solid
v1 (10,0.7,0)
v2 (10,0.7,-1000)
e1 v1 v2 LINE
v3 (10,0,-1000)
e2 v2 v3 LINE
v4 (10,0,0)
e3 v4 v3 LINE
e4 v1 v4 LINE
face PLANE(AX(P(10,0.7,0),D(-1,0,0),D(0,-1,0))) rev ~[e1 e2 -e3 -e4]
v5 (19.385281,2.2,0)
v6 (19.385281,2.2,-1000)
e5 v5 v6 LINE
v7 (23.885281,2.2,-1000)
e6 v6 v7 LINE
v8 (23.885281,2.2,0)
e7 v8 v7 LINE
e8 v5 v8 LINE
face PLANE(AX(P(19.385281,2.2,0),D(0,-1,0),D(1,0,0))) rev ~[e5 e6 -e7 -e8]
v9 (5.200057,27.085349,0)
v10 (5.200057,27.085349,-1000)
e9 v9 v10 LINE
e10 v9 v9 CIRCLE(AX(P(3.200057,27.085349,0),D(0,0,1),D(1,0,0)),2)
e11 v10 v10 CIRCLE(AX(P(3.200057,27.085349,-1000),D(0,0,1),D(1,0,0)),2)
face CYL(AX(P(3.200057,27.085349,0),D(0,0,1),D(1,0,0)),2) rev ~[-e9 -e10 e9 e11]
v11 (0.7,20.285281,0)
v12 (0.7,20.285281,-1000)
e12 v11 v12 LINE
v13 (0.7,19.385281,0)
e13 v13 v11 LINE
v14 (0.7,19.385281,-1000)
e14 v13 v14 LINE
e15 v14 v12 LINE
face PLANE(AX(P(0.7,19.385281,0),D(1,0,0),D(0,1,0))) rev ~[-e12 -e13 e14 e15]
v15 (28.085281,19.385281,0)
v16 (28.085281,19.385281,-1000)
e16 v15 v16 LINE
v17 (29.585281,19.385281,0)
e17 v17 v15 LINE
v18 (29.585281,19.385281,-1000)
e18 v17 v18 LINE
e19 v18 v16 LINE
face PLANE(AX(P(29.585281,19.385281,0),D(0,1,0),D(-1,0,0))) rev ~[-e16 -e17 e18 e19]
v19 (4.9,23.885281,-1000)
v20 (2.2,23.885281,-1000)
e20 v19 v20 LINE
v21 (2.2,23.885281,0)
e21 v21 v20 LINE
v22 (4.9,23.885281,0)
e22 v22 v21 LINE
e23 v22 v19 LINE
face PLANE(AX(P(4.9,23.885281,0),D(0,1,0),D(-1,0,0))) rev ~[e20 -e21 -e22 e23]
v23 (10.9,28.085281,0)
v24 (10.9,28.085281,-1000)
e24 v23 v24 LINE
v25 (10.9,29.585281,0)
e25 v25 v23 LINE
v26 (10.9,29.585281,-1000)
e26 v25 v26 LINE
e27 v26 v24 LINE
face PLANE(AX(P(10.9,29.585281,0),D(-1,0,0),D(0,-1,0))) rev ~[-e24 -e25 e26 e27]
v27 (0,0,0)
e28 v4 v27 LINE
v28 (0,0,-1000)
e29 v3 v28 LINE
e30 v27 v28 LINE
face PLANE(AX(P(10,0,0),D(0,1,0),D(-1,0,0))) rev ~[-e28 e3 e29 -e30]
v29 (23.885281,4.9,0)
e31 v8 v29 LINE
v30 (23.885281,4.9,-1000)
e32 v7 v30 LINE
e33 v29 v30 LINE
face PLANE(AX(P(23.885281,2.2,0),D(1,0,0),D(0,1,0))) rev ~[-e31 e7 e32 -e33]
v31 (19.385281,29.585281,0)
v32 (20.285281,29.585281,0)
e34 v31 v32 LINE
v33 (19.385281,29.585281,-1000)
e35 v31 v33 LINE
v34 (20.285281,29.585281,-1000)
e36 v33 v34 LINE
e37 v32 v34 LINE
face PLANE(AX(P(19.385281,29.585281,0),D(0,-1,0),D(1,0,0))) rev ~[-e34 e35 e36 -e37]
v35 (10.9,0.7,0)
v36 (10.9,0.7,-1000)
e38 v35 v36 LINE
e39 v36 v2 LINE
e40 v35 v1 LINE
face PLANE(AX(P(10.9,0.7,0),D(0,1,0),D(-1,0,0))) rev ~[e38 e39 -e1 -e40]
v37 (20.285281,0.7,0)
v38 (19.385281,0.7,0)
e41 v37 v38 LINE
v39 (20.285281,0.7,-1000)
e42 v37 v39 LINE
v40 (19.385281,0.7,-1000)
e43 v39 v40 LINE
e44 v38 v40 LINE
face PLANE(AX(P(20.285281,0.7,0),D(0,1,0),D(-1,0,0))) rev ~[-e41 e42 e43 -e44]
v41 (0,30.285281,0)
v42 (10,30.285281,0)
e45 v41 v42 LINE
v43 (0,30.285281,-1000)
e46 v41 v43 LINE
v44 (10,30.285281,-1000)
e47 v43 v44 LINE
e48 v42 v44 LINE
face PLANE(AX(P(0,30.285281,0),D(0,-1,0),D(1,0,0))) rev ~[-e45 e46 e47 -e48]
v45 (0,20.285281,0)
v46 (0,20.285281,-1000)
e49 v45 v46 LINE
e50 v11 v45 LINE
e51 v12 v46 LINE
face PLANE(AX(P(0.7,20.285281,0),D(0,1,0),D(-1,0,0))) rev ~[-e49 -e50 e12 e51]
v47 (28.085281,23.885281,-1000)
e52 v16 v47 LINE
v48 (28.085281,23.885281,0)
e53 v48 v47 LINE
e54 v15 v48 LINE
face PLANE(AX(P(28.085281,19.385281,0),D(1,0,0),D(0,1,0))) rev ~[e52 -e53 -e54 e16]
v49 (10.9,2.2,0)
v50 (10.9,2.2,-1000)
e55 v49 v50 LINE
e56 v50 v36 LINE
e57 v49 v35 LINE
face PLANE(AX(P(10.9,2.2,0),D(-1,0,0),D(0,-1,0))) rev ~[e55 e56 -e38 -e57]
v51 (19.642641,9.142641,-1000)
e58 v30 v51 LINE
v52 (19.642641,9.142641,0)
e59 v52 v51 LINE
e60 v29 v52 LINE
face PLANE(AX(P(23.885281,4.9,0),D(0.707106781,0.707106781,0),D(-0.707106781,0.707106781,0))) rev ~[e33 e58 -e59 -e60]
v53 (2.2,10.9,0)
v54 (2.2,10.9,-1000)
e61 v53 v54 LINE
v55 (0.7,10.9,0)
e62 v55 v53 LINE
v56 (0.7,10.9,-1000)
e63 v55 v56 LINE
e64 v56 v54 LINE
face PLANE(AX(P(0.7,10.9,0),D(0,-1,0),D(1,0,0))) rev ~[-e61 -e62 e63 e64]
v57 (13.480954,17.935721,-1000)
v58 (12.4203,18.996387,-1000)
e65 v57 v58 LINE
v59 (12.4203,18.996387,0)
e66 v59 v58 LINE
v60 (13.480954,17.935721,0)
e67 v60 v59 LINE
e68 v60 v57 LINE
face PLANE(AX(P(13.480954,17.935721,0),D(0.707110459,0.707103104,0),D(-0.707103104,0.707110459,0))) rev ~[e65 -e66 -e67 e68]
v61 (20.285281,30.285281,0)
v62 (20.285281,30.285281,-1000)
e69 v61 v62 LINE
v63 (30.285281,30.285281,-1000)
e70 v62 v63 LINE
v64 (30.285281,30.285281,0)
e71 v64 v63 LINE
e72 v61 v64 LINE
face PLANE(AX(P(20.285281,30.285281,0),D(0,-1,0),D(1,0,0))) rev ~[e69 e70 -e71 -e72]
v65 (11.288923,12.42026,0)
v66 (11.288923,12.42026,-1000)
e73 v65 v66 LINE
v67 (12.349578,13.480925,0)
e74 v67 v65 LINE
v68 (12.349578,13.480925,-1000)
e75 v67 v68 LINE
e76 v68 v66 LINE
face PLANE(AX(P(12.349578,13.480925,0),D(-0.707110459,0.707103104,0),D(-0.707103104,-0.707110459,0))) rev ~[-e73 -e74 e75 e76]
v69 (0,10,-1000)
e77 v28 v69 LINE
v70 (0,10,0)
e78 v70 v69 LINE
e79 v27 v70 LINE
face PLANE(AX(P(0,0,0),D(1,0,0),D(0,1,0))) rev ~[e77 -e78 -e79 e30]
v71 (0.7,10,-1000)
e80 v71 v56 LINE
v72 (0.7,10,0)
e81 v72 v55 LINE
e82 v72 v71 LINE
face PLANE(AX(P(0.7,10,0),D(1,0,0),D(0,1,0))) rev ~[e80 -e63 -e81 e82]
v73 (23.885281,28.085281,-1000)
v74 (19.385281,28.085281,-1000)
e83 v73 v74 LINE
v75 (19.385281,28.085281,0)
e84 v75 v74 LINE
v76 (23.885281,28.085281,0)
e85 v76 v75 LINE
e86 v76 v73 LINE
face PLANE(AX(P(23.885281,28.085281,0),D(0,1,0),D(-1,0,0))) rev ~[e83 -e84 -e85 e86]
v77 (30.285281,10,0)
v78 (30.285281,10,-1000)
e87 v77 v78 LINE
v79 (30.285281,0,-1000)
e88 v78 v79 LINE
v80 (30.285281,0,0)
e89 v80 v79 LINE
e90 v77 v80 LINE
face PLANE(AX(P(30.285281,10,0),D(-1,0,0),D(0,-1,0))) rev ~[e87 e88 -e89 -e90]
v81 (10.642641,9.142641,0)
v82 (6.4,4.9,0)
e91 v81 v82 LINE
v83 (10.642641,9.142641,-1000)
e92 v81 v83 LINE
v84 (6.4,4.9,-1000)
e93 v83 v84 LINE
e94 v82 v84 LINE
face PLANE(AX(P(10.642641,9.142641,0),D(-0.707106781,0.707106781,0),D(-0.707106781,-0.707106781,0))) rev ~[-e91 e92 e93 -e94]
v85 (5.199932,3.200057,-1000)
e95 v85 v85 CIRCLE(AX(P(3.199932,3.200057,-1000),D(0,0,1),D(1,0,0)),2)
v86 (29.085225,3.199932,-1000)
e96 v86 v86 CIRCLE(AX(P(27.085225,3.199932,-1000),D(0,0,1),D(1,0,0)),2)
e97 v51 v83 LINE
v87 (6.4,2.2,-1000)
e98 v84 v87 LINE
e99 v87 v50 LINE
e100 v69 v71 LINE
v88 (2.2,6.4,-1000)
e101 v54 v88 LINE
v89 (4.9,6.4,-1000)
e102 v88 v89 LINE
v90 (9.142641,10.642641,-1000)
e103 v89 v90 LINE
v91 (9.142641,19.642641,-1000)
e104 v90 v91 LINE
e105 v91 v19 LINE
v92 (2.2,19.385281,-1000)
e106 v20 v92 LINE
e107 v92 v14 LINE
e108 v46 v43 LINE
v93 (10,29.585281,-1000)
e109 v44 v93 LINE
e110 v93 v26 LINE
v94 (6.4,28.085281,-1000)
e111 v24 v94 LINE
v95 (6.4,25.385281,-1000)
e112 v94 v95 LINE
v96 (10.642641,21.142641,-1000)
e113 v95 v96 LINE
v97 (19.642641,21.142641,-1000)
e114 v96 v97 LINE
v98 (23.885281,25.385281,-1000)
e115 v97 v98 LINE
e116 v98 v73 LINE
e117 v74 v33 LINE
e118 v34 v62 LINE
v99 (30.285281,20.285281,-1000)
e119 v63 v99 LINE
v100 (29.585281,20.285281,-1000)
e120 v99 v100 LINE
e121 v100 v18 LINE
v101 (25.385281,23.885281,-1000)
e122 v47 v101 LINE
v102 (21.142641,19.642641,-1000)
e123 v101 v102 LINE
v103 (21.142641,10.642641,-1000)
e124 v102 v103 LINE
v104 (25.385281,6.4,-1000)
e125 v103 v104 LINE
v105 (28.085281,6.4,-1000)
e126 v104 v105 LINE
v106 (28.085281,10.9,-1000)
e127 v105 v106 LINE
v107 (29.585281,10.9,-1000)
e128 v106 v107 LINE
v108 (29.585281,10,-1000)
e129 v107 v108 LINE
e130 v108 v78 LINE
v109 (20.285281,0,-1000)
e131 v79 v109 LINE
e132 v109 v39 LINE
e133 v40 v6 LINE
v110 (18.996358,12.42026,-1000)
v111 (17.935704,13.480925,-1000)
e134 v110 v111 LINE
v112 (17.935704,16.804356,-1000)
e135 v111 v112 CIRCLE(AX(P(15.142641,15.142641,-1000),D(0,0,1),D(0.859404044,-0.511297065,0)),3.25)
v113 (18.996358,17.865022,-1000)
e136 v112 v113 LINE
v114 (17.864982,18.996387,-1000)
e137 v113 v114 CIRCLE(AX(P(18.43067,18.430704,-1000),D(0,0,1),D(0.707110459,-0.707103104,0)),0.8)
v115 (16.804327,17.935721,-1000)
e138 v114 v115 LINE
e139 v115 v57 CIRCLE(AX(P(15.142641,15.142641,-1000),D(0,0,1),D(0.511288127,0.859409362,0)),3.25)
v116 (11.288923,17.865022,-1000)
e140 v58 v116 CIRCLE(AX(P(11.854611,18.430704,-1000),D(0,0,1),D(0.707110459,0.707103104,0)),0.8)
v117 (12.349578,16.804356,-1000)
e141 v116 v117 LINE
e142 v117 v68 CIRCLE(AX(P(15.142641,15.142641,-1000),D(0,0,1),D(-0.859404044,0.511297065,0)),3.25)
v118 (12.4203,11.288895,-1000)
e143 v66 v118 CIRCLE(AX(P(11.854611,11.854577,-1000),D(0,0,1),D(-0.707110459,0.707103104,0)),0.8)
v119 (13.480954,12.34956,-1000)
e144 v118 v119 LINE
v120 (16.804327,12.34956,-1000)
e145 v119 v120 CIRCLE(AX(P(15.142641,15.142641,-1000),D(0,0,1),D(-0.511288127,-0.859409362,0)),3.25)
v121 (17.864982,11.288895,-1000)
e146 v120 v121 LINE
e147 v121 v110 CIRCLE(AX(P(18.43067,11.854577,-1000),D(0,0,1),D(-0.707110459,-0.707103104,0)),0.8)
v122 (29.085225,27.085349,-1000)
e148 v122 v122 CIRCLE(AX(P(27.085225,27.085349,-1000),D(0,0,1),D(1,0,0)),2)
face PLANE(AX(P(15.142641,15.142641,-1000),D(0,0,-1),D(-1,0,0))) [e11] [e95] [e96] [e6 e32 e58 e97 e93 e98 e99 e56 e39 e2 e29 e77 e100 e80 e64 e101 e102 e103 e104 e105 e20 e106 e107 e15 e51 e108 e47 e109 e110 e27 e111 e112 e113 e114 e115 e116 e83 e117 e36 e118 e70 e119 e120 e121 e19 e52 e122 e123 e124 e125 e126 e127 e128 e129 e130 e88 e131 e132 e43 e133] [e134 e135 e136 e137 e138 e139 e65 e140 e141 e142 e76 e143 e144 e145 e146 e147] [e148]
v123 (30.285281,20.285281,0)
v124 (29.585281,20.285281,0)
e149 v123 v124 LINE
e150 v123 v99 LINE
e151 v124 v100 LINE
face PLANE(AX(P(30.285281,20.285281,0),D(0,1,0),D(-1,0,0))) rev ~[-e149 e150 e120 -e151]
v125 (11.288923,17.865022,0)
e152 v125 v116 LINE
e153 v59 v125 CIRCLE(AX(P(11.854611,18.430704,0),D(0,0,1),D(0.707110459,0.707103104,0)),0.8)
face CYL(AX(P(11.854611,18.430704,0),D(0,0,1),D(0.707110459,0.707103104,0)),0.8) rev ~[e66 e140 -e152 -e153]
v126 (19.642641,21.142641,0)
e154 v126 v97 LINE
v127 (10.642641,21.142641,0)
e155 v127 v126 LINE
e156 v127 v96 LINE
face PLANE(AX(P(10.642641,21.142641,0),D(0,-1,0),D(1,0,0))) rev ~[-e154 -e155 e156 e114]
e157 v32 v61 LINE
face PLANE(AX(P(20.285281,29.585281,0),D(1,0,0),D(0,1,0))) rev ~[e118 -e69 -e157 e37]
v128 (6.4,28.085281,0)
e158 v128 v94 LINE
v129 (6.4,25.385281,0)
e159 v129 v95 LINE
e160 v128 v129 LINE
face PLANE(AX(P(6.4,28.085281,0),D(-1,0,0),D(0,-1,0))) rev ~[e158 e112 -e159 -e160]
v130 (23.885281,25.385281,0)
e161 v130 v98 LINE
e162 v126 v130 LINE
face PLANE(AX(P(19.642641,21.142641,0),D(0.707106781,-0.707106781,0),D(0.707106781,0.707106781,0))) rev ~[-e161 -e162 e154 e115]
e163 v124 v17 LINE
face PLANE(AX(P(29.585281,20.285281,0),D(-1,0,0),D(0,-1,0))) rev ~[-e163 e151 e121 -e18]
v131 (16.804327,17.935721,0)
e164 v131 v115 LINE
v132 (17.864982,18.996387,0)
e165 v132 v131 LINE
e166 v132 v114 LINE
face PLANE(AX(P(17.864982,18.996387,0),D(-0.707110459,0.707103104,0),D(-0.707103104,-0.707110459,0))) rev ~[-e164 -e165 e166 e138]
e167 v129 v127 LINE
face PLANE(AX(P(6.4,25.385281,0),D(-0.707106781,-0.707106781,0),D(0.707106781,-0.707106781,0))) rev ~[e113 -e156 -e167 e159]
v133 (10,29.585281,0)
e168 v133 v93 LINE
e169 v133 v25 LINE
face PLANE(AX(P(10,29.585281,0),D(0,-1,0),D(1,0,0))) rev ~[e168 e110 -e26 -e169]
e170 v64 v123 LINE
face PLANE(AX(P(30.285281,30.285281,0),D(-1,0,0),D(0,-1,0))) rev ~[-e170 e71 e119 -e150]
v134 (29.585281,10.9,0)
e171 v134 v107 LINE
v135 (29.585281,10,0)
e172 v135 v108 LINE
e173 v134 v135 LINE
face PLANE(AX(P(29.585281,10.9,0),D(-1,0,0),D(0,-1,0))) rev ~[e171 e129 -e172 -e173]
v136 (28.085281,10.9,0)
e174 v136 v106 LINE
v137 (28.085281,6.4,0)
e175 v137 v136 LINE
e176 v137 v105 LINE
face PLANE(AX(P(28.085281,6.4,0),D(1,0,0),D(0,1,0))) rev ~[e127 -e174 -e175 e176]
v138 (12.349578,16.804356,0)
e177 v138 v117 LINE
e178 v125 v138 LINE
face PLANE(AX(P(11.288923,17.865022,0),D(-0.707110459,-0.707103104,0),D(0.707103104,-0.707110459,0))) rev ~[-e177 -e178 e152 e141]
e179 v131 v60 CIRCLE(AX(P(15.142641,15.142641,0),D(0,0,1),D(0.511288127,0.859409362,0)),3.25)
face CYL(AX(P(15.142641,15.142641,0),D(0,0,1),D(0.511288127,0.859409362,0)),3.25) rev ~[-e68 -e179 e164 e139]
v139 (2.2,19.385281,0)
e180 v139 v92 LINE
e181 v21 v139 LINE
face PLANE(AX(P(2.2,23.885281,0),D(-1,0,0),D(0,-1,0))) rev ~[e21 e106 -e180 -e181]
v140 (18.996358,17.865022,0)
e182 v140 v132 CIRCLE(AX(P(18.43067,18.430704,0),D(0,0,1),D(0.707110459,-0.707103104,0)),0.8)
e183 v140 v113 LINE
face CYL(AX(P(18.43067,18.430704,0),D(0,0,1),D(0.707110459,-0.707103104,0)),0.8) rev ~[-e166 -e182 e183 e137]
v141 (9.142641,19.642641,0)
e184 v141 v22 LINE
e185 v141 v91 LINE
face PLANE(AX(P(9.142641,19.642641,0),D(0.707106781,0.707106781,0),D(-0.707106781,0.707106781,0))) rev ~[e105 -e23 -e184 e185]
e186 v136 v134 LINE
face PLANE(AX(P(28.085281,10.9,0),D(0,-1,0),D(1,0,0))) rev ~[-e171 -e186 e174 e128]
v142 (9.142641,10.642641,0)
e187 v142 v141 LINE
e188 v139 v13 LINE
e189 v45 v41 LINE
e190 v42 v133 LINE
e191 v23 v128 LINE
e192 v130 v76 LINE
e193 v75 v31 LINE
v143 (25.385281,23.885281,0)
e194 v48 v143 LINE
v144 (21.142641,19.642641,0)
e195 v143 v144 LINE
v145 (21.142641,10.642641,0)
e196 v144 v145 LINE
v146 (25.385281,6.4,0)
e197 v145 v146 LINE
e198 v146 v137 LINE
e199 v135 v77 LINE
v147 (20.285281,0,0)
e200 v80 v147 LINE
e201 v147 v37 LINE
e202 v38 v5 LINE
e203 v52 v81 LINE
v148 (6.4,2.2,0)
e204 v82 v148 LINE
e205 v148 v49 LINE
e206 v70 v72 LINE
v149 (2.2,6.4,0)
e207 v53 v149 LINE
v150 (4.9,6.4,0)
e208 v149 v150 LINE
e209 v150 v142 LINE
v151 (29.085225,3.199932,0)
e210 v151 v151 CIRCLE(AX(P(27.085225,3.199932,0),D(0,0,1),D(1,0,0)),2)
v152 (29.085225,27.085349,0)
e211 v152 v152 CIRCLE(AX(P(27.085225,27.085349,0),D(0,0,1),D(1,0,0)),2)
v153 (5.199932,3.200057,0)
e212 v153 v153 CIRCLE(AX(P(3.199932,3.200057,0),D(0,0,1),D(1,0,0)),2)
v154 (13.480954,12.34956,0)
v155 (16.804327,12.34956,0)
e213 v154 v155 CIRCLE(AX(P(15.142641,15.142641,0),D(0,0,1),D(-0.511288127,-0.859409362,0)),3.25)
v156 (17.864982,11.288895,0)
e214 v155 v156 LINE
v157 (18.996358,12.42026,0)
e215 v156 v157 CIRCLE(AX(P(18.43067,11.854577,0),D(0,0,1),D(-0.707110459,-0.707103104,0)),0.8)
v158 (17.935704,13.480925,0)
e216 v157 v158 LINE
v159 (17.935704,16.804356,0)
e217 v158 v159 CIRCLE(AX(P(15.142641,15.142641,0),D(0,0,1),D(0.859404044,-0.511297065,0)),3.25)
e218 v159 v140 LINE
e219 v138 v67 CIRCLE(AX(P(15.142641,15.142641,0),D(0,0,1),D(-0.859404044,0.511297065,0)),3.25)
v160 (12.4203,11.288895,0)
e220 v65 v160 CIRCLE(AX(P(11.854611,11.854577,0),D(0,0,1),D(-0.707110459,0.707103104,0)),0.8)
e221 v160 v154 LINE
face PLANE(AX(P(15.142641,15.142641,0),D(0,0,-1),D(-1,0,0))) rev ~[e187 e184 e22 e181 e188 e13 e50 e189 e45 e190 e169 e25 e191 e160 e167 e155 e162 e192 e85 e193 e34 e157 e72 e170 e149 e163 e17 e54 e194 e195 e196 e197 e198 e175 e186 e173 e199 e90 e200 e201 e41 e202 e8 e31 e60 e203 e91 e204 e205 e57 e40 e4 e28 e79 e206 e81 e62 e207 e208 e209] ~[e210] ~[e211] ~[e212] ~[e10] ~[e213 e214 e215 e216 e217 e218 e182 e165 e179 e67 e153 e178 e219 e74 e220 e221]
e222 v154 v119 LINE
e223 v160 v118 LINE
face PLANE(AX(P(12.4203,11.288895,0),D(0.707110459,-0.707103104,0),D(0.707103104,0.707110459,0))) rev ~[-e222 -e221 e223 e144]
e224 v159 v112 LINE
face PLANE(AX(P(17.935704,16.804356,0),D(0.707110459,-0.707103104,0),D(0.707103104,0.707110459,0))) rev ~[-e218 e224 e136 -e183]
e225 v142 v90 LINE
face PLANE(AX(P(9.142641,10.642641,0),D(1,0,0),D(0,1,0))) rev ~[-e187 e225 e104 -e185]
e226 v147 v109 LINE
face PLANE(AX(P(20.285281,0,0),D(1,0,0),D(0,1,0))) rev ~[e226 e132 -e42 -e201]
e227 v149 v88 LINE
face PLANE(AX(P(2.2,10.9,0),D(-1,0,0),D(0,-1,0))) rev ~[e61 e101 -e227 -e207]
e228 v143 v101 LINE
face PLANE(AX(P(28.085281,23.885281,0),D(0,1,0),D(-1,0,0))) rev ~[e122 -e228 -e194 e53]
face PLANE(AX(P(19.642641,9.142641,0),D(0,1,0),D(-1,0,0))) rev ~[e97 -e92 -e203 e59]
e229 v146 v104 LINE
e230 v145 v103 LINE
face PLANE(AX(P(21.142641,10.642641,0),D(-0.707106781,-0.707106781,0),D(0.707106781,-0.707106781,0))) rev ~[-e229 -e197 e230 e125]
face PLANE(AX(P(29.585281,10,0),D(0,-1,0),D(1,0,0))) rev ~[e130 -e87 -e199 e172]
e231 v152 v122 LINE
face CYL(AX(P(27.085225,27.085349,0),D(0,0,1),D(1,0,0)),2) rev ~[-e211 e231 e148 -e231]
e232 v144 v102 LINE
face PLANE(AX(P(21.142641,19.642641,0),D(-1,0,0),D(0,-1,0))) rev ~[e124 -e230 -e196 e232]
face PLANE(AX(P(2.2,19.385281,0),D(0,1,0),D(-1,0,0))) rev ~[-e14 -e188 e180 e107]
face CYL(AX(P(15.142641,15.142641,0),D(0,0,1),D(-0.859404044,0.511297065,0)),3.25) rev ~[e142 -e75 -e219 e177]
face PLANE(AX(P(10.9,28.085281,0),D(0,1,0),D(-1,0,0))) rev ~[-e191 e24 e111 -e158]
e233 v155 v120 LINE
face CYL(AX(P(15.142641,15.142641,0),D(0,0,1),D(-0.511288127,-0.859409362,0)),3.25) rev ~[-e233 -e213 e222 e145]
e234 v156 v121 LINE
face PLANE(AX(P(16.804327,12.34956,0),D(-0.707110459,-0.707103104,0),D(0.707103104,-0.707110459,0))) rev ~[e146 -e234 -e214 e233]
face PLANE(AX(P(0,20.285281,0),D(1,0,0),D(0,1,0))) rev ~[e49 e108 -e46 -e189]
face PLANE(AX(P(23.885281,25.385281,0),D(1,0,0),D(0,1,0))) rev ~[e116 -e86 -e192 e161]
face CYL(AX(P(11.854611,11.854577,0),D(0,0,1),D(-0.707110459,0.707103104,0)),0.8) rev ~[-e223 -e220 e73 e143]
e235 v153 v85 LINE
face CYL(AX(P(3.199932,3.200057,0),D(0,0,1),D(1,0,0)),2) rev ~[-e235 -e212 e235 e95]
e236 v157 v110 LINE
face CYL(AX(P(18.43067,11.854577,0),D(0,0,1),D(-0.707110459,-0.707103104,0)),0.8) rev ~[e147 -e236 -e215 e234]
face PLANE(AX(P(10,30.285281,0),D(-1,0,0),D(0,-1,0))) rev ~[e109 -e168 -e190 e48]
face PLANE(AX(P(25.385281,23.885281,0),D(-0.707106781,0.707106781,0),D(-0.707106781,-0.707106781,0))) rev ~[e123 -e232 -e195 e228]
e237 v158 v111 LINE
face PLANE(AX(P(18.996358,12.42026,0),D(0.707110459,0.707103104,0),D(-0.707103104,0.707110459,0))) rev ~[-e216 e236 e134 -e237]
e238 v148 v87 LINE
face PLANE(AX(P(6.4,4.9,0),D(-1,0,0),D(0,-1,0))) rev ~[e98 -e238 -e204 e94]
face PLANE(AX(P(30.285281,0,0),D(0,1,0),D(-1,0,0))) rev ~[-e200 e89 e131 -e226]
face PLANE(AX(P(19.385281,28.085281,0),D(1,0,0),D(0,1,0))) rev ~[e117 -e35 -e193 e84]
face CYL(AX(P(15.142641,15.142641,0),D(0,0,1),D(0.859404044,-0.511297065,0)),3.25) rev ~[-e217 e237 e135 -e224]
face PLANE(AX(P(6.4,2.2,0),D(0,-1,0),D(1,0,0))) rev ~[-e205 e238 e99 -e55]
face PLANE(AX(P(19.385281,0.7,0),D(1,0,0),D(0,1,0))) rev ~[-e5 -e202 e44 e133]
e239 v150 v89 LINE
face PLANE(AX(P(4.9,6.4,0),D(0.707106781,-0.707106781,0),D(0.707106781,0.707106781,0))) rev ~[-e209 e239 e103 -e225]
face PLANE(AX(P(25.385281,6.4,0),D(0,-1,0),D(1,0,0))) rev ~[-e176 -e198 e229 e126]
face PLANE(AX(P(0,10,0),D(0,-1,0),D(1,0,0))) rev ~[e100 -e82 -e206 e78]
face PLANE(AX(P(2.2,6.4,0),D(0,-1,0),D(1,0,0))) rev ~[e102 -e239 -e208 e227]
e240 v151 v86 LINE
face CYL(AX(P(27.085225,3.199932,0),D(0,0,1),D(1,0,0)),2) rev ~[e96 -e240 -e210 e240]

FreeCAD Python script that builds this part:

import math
import FreeCAD as App
import Part
import Sketcher
from FreeCAD import Vector

doc = App.newDocument("Part")
body = doc.addObject("PartDesign::Body", "Body")

# Sketch on XY plane
sketch1 = body.newObject("Sketcher::SketchObject", "Sketch")
sketch1.AttachmentSupport = (doc.getObject("XY_Plane"), [""])
sketch1.MapMode = "FlatFace"
sketch1.addGeometry(Part.LineSegment(Vector(0, 10, 0), Vector(0, 0, 0)), False)
sketch1.addGeometry(Part.LineSegment(Vector(0, 0, 0), Vector(10, 0, 0)), False)
sketch1.addGeometry(Part.LineSegment(Vector(10, 0, 0), Vector(10, 0.7, 0)), False)
sketch1.addGeometry(Part.LineSegment(Vector(10, 0.7, 0), Vector(10.9, 0.7, 0)), False)
sketch1.addGeometry(Part.LineSegment(Vector(10.9, 0.7, 0), Vector(10.9, 2.2, 0)), False)
sketch1.addGeometry(Part.LineSegment(Vector(10.9, 2.2, 0), Vector(6.4, 2.2, 0)), False)
sketch1.addGeometry(Part.LineSegment(Vector(6.4, 2.2, 0), Vector(6.4, 4.9, 0)), False)
sketch1.addGeometry(Part.LineSegment(Vector(6.4, 4.9, 0), Vector(10.6, 9.1, 0)), False)
sketch1.addGeometry(Part.LineSegment(Vector(10.6, 9.1, 0), Vector(19.6, 9.1, 0)), False)
sketch1.addGeometry(Part.LineSegment(Vector(19.6, 9.1, 0), Vector(23.9, 4.9, 0)), False)
sketch1.addGeometry(Part.LineSegment(Vector(23.9, 4.9, 0), Vector(23.9, 2.2, 0)), False)
sketch1.addGeometry(Part.LineSegment(Vector(23.9, 2.2, 0), Vector(19.4, 2.2, 0)), False)
sketch1.addGeometry(Part.LineSegment(Vector(19.4, 2.2, 0), Vector(19.4, 0.7, 0)), False)
sketch1.addGeometry(Part.LineSegment(Vector(19.4, 0.7, 0), Vector(20.3, 0.7, 0)), False)
sketch1.addGeometry(Part.LineSegment(Vector(20.3, 0.7, 0), Vector(20.3, 0, 0)), False)
sketch1.addGeometry(Part.LineSegment(Vector(20.3, 0, 0), Vector(30.3, 0, 0)), False)
sketch1.addGeometry(Part.LineSegment(Vector(30.3, 0, 0), Vector(30.3, 10, 0)), False)
sketch1.addGeometry(Part.LineSegment(Vector(30.3, 10, 0), Vector(29.6, 10, 0)), False)
sketch1.addGeometry(Part.LineSegment(Vector(29.6, 10, 0), Vector(29.6, 10.9, 0)), False)
sketch1.addGeometry(Part.LineSegment(Vector(29.6, 10.9, 0), Vector(28.1, 10.9, 0)), False)
sketch1.addGeometry(Part.LineSegment(Vector(28.1, 10.9, 0), Vector(28.1, 6.4, 0)), False)
sketch1.addGeometry(Part.LineSegment(Vector(28.1, 6.4, 0), Vector(25.4, 6.4, 0)), False)
sketch1.addGeometry(Part.LineSegment(Vector(25.4, 6.4, 0), Vector(21.1, 10.6, 0)), False)
sketch1.addGeometry(Part.LineSegment(Vector(21.1, 10.6, 0), Vector(21.1, 19.6, 0)), False)
sketch1.addGeometry(Part.LineSegment(Vector(21.1, 19.6, 0), Vector(25.4, 23.9, 0)), False)
sketch1.addGeometry(Part.LineSegment(Vector(25.4, 23.9, 0), Vector(28.1, 23.9, 0)), False)
sketch1.addGeometry(Part.LineSegment(Vector(28.1, 23.9, 0), Vector(28.1, 19.4, 0)), False)
sketch1.addGeometry(Part.LineSegment(Vector(28.1, 19.4, 0), Vector(29.6, 19.4, 0)), False)
sketch1.addGeometry(Part.LineSegment(Vector(29.6, 19.4, 0), Vector(29.6, 20.3, 0)), False)
sketch1.addGeometry(Part.LineSegment(Vector(29.6, 20.3, 0), Vector(30.3, 20.3, 0)), False)
sketch1.addGeometry(Part.LineSegment(Vector(30.3, 20.3, 0), Vector(30.3, 30.3, 0)), False)
sketch1.addGeometry(Part.LineSegment(Vector(30.3, 30.3, 0), Vector(20.3, 30.3, 0)), False)
sketch1.addGeometry(Part.LineSegment(Vector(20.3, 30.3, 0), Vector(20.3, 29.6, 0)), False)
sketch1.addGeometry(Part.LineSegment(Vector(20.3, 29.6, 0), Vector(19.4, 29.6, 0)), False)
sketch1.addGeometry(Part.LineSegment(Vector(19.4, 29.6, 0), Vector(19.4, 28.1, 0)), False)
sketch1.addGeometry(Part.LineSegment(Vector(19.4, 28.1, 0), Vector(23.9, 28.1, 0)), False)
sketch1.addGeometry(Part.LineSegment(Vector(23.9, 28.1, 0), Vector(23.9, 25.4, 0)), False)
sketch1.addGeometry(Part.LineSegment(Vector(23.9, 25.4, 0), Vector(19.6, 21.1, 0)), False)
sketch1.addGeometry(Part.LineSegment(Vector(19.6, 21.1, 0), Vector(10.6, 21.1, 0)), False)
sketch1.addGeometry(Part.LineSegment(Vector(10.6, 21.1, 0), Vector(6.4, 25.4, 0)), False)
sketch1.addGeometry(Part.LineSegment(Vector(6.4, 25.4, 0), Vector(6.4, 28.1, 0)), False)
sketch1.addGeometry(Part.LineSegment(Vector(6.4, 28.1, 0), Vector(10.9, 28.1, 0)), False)
sketch1.addGeometry(Part.LineSegment(Vector(10.9, 28.1, 0), Vector(10.9, 29.6, 0)), False)
sketch1.addGeometry(Part.LineSegment(Vector(10.9, 29.6, 0), Vector(10, 29.6, 0)), False)
sketch1.addGeometry(Part.LineSegment(Vector(10, 29.6, 0), Vector(10, 30.3, 0)), False)
sketch1.addGeometry(Part.LineSegment(Vector(10, 30.3, 0), Vector(0, 30.3, 0)), False)
sketch1.addGeometry(Part.LineSegment(Vector(0, 30.3, 0), Vector(0, 20.3, 0)), False)
sketch1.addGeometry(Part.LineSegment(Vector(0, 20.3, 0), Vector(0.7, 20.3, 0)), False)
sketch1.addGeometry(Part.LineSegment(Vector(0.7, 20.3, 0), Vector(0.7, 19.4, 0)), False)
sketch1.addGeometry(Part.LineSegment(Vector(0.7, 19.4, 0), Vector(2.2, 19.4, 0)), False)
sketch1.addGeometry(Part.LineSegment(Vector(2.2, 19.4, 0), Vector(2.2, 23.9, 0)), False)
sketch1.addGeometry(Part.LineSegment(Vector(2.2, 23.9, 0), Vector(4.9, 23.9, 0)), False)
sketch1.addGeometry(Part.LineSegment(Vector(4.9, 23.9, 0), Vector(9.1, 19.6, 0)), False)
sketch1.addGeometry(Part.LineSegment(Vector(9.1, 19.6, 0), Vector(9.1, 10.6, 0)), False)
sketch1.addGeometry(Part.LineSegment(Vector(9.1, 10.6, 0), Vector(4.9, 6.4, 0)), False)
sketch1.addGeometry(Part.LineSegment(Vector(4.9, 6.4, 0), Vector(2.2, 6.4, 0)), False)
sketch1.addGeometry(Part.LineSegment(Vector(2.2, 6.4, 0), Vector(2.2, 10.9, 0)), False)
sketch1.addGeometry(Part.LineSegment(Vector(2.2, 10.9, 0), Vector(0.7, 10.9, 0)), False)
sketch1.addGeometry(Part.LineSegment(Vector(0.7, 10.9, 0), Vector(0.7, 10, 0)), False)
sketch1.addGeometry(Part.LineSegment(Vector(0.7, 10, 0), Vector(0, 10, 0)), False)
sketch1.addConstraint(Sketcher.Constraint("Coincident", 0, 2, 1, 1))
sketch1.addConstraint(Sketcher.Constraint("Coincident", 1, 2, 2, 1))
sketch1.addConstraint(Sketcher.Constraint("Coincident", 2, 2, 3, 1))
sketch1.addConstraint(Sketcher.Constraint("Coincident", 3, 2, 4, 1))
sketch1.addConstraint(Sketcher.Constraint("Coincident", 4, 2, 5, 1))
sketch1.addConstraint(Sketcher.Constraint("Coincident", 5, 2, 6, 1))
sketch1.addConstraint(Sketcher.Constraint("Coincident", 6, 2, 7, 1))
sketch1.addConstraint(Sketcher.Constraint("Coincident", 7, 2, 8, 1))
sketch1.addConstraint(Sketcher.Constraint("Coincident", 8, 2, 9, 1))
sketch1.addConstraint(Sketcher.Constraint("Coincident", 9, 2, 10, 1))
sketch1.addConstraint(Sketcher.Constraint("Coincident", 10, 2, 11, 1))
sketch1.addConstraint(Sketcher.Constraint("Coincident", 11, 2, 12, 1))
sketch1.addConstraint(Sketcher.Constraint("Coincident", 12, 2, 13, 1))
sketch1.addConstraint(Sketcher.Constraint("Coincident", 13, 2, 14, 1))
sketch1.addConstraint(Sketcher.Constraint("Coincident", 14, 2, 15, 1))
sketch1.addConstraint(Sketcher.Constraint("Coincident", 15, 2, 16, 1))
sketch1.addConstraint(Sketcher.Constraint("Coincident", 16, 2, 17, 1))
sketch1.addConstraint(Sketcher.Constraint("Coincident", 17, 2, 18, 1))
sketch1.addConstraint(Sketcher.Constraint("Coincident", 18, 2, 19, 1))
sketch1.addConstraint(Sketcher.Constraint("Coincident", 19, 2, 20, 1))
sketch1.addConstraint(Sketcher.Constraint("Coincident", 20, 2, 21, 1))
sketch1.addConstraint(Sketcher.Constraint("Coincident", 21, 2, 22, 1))
sketch1.addConstraint(Sketcher.Constraint("Coincident", 22, 2, 23, 1))
sketch1.addConstraint(Sketcher.Constraint("Coincident", 23, 2, 24, 1))
sketch1.addConstraint(Sketcher.Constraint("Coincident", 24, 2, 25, 1))
sketch1.addConstraint(Sketcher.Constraint("Coincident", 25, 2, 26, 1))
sketch1.addConstraint(Sketcher.Constraint("Coincident", 26, 2, 27, 1))
sketch1.addConstraint(Sketcher.Constraint("Coincident", 27, 2, 28, 1))
sketch1.addConstraint(Sketcher.Constraint("Coincident", 28, 2, 29, 1))
sketch1.addConstraint(Sketcher.Constraint("Coincident", 29, 2, 30, 1))
sketch1.addConstraint(Sketcher.Constraint("Coincident", 30, 2, 31, 1))
sketch1.addConstraint(Sketcher.Constraint("Coincident", 31, 2, 32, 1))
sketch1.addConstraint(Sketcher.Constraint("Coincident", 32, 2, 33, 1))
sketch1.addConstraint(Sketcher.Constraint("Coincident", 33, 2, 34, 1))
sketch1.addConstraint(Sketcher.Constraint("Coincident", 34, 2, 35, 1))
sketch1.addConstraint(Sketcher.Constraint("Coincident", 35, 2, 36, 1))
sketch1.addConstraint(Sketcher.Constraint("Coincident", 36, 2, 37, 1))
sketch1.addConstraint(Sketcher.Constraint("Coincident", 37, 2, 38, 1))
sketch1.addConstraint(Sketcher.Constraint("Coincident", 38, 2, 39, 1))
sketch1.addConstraint(Sketcher.Constraint("Coincident", 39, 2, 40, 1))
sketch1.addConstraint(Sketcher.Constraint("Coincident", 40, 2, 41, 1))
sketch1.addConstraint(Sketcher.Constraint("Coincident", 41, 2, 42, 1))
sketch1.addConstraint(Sketcher.Constraint("Coincident", 42, 2, 43, 1))
sketch1.addConstraint(Sketcher.Constraint("Coincident", 43, 2, 44, 1))
sketch1.addConstraint(Sketcher.Constraint("Coincident", 44, 2, 45, 1))
sketch1.addConstraint(Sketcher.Constraint("Coincident", 45, 2, 46, 1))
sketch1.addConstraint(Sketcher.Constraint("Coincident", 46, 2, 47, 1))
sketch1.addConstraint(Sketcher.Constraint("Coincident", 47, 2, 48, 1))
sketch1.addConstraint(Sketcher.Constraint("Coincident", 48, 2, 49, 1))
sketch1.addConstraint(Sketcher.Constraint("Coincident", 49, 2, 50, 1))
sketch1.addConstraint(Sketcher.Constraint("Coincident", 50, 2, 51, 1))
sketch1.addConstraint(Sketcher.Constraint("Coincident", 51, 2, 52, 1))
sketch1.addConstraint(Sketcher.Constraint("Coincident", 52, 2, 53, 1))
sketch1.addConstraint(Sketcher.Constraint("Coincident", 53, 2, 54, 1))
sketch1.addConstraint(Sketcher.Constraint("Coincident", 54, 2, 55, 1))
sketch1.addConstraint(Sketcher.Constraint("Coincident", 55, 2, 56, 1))
sketch1.addConstraint(Sketcher.Constraint("Coincident", 56, 2, 57, 1))
sketch1.addConstraint(Sketcher.Constraint("Coincident", 57, 2, 58, 1))
sketch1.addConstraint(Sketcher.Constraint("Coincident", 58, 2, 59, 1))
sketch1.addConstraint(Sketcher.Constraint("Coincident", 59, 2, 0, 1))
sketch1.addConstraint(Sketcher.Constraint("Vertical", 0))
sketch1.addConstraint(Sketcher.Constraint("Horizontal", 1))
sketch1.addConstraint(Sketcher.Constraint("Vertical", 2))
sketch1.addConstraint(Sketcher.Constraint("Horizontal", 3))
sketch1.addConstraint(Sketcher.Constraint("Vertical", 4))
sketch1.addConstraint(Sketcher.Constraint("Horizontal", 5))
sketch1.addConstraint(Sketcher.Constraint("Vertical", 6))
sketch1.addConstraint(Sketcher.Constraint("Horizontal", 8))
sketch1.addConstraint(Sketcher.Constraint("Vertical", 10))
sketch1.addConstraint(Sketcher.Constraint("Horizontal", 11))
sketch1.addConstraint(Sketcher.Constraint("Vertical", 12))
sketch1.addConstraint(Sketcher.Constraint("Horizontal", 13))
sketch1.addConstraint(Sketcher.Constraint("Vertical", 14))
sketch1.addConstraint(Sketcher.Constraint("Horizontal", 15))
sketch1.addConstraint(Sketcher.Constraint("Vertical", 16))
sketch1.addConstraint(Sketcher.Constraint("Horizontal", 17))
sketch1.addConstraint(Sketcher.Constraint("Vertical", 18))
sketch1.addConstraint(Sketcher.Constraint("Horizontal", 19))
sketch1.addConstraint(Sketcher.Constraint("Vertical", 20))
sketch1.addConstraint(Sketcher.Constraint("Horizontal", 21))
sketch1.addConstraint(Sketcher.Constraint("Vertical", 23))
sketch1.addConstraint(Sketcher.Constraint("Horizontal", 25))
sketch1.addConstraint(Sketcher.Constraint("Vertical", 26))
sketch1.addConstraint(Sketcher.Constraint("Horizontal", 27))
sketch1.addConstraint(Sketcher.Constraint("Vertical", 28))
sketch1.addConstraint(Sketcher.Constraint("Horizontal", 29))
sketch1.addConstraint(Sketcher.Constraint("Vertical", 30))
sketch1.addConstraint(Sketcher.Constraint("Horizontal", 31))
sketch1.addConstraint(Sketcher.Constraint("Vertical", 32))
sketch1.addConstraint(Sketcher.Constraint("Horizontal", 33))
sketch1.addConstraint(Sketcher.Constraint("Vertical", 34))
sketch1.addConstraint(Sketcher.Constraint("Horizontal", 35))
sketch1.addConstraint(Sketcher.Constraint("Vertical", 36))
sketch1.addConstraint(Sketcher.Constraint("Horizontal", 38))
sketch1.addConstraint(Sketcher.Constraint("Vertical", 40))
sketch1.addConstraint(Sketcher.Constraint("Horizontal", 41))
sketch1.addConstraint(Sketcher.Constraint("Vertical", 42))
sketch1.addConstraint(Sketcher.Constraint("Horizontal", 43))
sketch1.addConstraint(Sketcher.Constraint("Vertical", 44))
sketch1.addConstraint(Sketcher.Constraint("Horizontal", 45))
sketch1.addConstraint(Sketcher.Constraint("Vertical", 46))
sketch1.addConstraint(Sketcher.Constraint("Horizontal", 47))
sketch1.addConstraint(Sketcher.Constraint("Vertical", 48))
sketch1.addConstraint(Sketcher.Constraint("Horizontal", 49))
sketch1.addConstraint(Sketcher.Constraint("Vertical", 50))
sketch1.addConstraint(Sketcher.Constraint("Horizontal", 51))
sketch1.addConstraint(Sketcher.Constraint("Vertical", 53))
sketch1.addConstraint(Sketcher.Constraint("Horizontal", 55))
sketch1.addConstraint(Sketcher.Constraint("Vertical", 56))
sketch1.addConstraint(Sketcher.Constraint("Horizontal", 57))
sketch1.addConstraint(Sketcher.Constraint("Vertical", 58))
sketch1.addConstraint(Sketcher.Constraint("Horizontal", 59))
sketch1.addConstraint(Sketcher.Constraint("Coincident", 0, 2, -1, 1))
sketch1.addConstraint(Sketcher.Constraint("PointOnObject", 14, 2, -1))
sketch1.addConstraint(Sketcher.Constraint("PointOnObject", 45, 2, -2))
sketch1.addConstraint(Sketcher.Constraint("Perpendicular", 7, 9))
sketch1.addConstraint(Sketcher.Constraint("Parallel", 9, 22))
sketch1.addConstraint(Sketcher.Constraint("Perpendicular", 22, 24))
sketch1.addConstraint(Sketcher.Constraint("Parallel", 24, 37))
sketch1.addConstraint(Sketcher.Constraint("Perpendicular", 37, 39))
sketch1.addConstraint(Sketcher.Constraint("Parallel", 39, 52))
sketch1.addConstraint(Sketcher.Constraint("Perpendicular", 52, 54))
sketch1.addConstraint(Sketcher.Constraint("Horizontal", 6, 2, 9, 2))
sketch1.addConstraint(Sketcher.Constraint("Horizontal", 5, 2, 10, 2))
sketch1.addConstraint(Sketcher.Constraint("Horizontal", 3, 2, 12, 2))
sketch1.addConstraint(Sketcher.Constraint("Horizontal", 36, 2, 39, 2))
sketch1.addConstraint(Sketcher.Constraint("Horizontal", 35, 2, 40, 2))
sketch1.addConstraint(Sketcher.Constraint("Horizontal", 33, 2, 42, 2))
sketch1.addConstraint(Sketcher.Constraint("Horizontal", 31, 2, 44, 2))
sketch1.addConstraint(Sketcher.Constraint("Horizontal", 29, 2, 46, 2))
sketch1.addConstraint(Sketcher.Constraint("Horizontal", 27, 2, 48, 2))
sketch1.addConstraint(Sketcher.Constraint("Horizontal", 25, 2, 50, 2))
sketch1.addConstraint(Sketcher.Constraint("Horizontal", 23, 2, 52, 2))
sketch1.addConstraint(Sketcher.Constraint("Horizontal", 22, 2, 53, 2))
sketch1.addConstraint(Sketcher.Constraint("Horizontal", 21, 2, 54, 2))
sketch1.addConstraint(Sketcher.Constraint("Horizontal", 19, 2, 56, 2))
sketch1.addConstraint(Sketcher.Constraint("Horizontal", 17, 2, 58, 2))
sketch1.addConstraint(Sketcher.Constraint("Vertical", 21, 2, 24, 2))
sketch1.addConstraint(Sketcher.Constraint("Vertical", 20, 2, 25, 2))
sketch1.addConstraint(Sketcher.Constraint("Vertical", 18, 2, 27, 2))
sketch1.addConstraint(Sketcher.Constraint("Vertical", 16, 2, 29, 2))
sketch1.addConstraint(Sketcher.Constraint("Vertical", 14, 2, 31, 2))
sketch1.addConstraint(Sketcher.Constraint("Vertical", 12, 2, 33, 2))
sketch1.addConstraint(Sketcher.Constraint("Vertical", 10, 2, 35, 2))
sketch1.addConstraint(Sketcher.Constraint("Vertical", 8, 2, 37, 2))
sketch1.addConstraint(Sketcher.Constraint("Vertical", 7, 2, 38, 2))
sketch1.addConstraint(Sketcher.Constraint("Vertical", 6, 2, 39, 2))
sketch1.addConstraint(Sketcher.Constraint("Vertical", 4, 2, 41, 2))
sketch1.addConstraint(Sketcher.Constraint("Vertical", 2, 2, 43, 2))
sketch1.addConstraint(Sketcher.Constraint("Vertical", 50, 2, 55, 2))
sketch1.addConstraint(Sketcher.Constraint("Vertical", 48, 2, 57, 2))
sketch1.addConstraint(Sketcher.Constraint("Equal", 5, 11))
sketch1.addConstraint(Sketcher.Constraint("Equal", 3, 13))
sketch1.addConstraint(Sketcher.Constraint("Equal", 1, 15))
sketch1.addConstraint(Sketcher.Constraint("Equal", 29, 47))
sketch1.addConstraint(Sketcher.Constraint("Equal", 27, 49))
sketch1.addConstraint(Sketcher.Constraint("Equal", 25, 51))
sketch1.addConstraint(Sketcher.Constraint("Equal", 45, 0))
sketch1.addConstraint(Sketcher.Constraint("Equal", 59, 2))
sketch1.addConstraint(Sketcher.Constraint("Equal", 57, 4))
sketch1.addConstraint(Sketcher.Constraint("Equal", 55, 6))
sketch1.addConstraint(Sketcher.Constraint("Equal", 43, 18))
sketch1.addConstraint(Sketcher.Constraint("Equal", 41, 20))
sketch1.addConstraint(Sketcher.Constraint("Equal", 38, 23))
sketch1.addConstraint(Sketcher.Constraint("Equal", 20, 26))
sketch1.addConstraint(Sketcher.Constraint("Equal", 18, 28))
sketch1.addConstraint(Sketcher.Constraint("Equal", 16, 30))
sketch1.addConstraint(Sketcher.Constraint("Equal", 14, 32))
sketch1.addConstraint(Sketcher.Constraint("Equal", 12, 34))
sketch1.addConstraint(Sketcher.Constraint("Equal", 10, 36))
sketch1.addConstraint(Sketcher.Constraint("Equal", 9, 22))
sketch1.addConstraint(Sketcher.Constraint("DistanceX", 1, 1, 1, 2, 10.0))
sketch1.addConstraint(Sketcher.Constraint("DistanceX", 8, 1, 8, 2, 9.0))
sketch1.addConstraint(Sketcher.Constraint("Distance", 7, 6.0))
sketch1.addConstraint(Sketcher.Constraint("DistanceX", 3, 1, 3, 2, 0.9))
sketch1.addConstraint(Sketcher.Constraint("DistanceX", 5, 2, 5, 1, 4.5))
sketch1.addConstraint(Sketcher.Constraint("DistanceX", 17, 2, 17, 1, 0.7))
sketch1.addConstraint(Sketcher.Constraint("DistanceX", 19, 2, 19, 1, 1.5))
sketch1.addConstraint(Sketcher.Constraint("DistanceX", 21, 2, 21, 1, 2.7))
pad1 = body.newObject("PartDesign::Pad", "Pad")
pad1.Profile = sketch1
pad1.Length = 1000
pad1.Reversed = True

# Sketch on XY plane
sketch2 = body.newObject("Sketcher::SketchObject", "Sketch001")
sketch2.AttachmentSupport = (doc.getObject("XY_Plane"), [""])
sketch2.MapMode = "FlatFace"
sketch2.addGeometry(Part.Circle(Vector(3.2, 27.1, 0), Vector(0, 0, 1), 2), False)
sketch2.addConstraint(Sketcher.Constraint("Diameter", 0, 4.0))
sketch2.addConstraint(Sketcher.Constraint("DistanceY", -1, 1, 0, 3, 27.085349))
sketch2.addConstraint(Sketcher.Constraint("DistanceX", -1, 1, 0, 3, 3.200057))
pocket1 = body.newObject("PartDesign::Pocket", "Pocket")
pocket1.Profile = sketch2
pocket1.Type = "UpToFirst"

# Sketch on XY plane
sketch3 = body.newObject("Sketcher::SketchObject", "Sketch002")
sketch3.AttachmentSupport = (doc.getObject("XY_Plane"), [""])
sketch3.MapMode = "FlatFace"
sketch3.addGeometry(Part.Circle(Vector(27.1, 27.1, 0), Vector(0, 0, 1), 2), False)
sketch3.addConstraint(Sketcher.Constraint("Diameter", 0, 4.0))
sketch3.addConstraint(Sketcher.Constraint("DistanceY", -1, 1, 0, 3, 27.085349))
sketch3.addConstraint(Sketcher.Constraint("DistanceX", -1, 1, 0, 3, 27.085225))
pocket2 = body.newObject("PartDesign::Pocket", "Pocket001")
pocket2.Profile = sketch3
pocket2.Type = "UpToFirst"

# Sketch on XY plane
sketch4 = body.newObject("Sketcher::SketchObject", "Sketch003")
sketch4.AttachmentSupport = (doc.getObject("XY_Plane"), [""])
sketch4.MapMode = "FlatFace"
sketch4.addGeometry(Part.Circle(Vector(27.1, 3.2, 0), Vector(0, 0, 1), 2), False)
sketch4.addConstraint(Sketcher.Constraint("Diameter", 0, 4.0))
sketch4.addConstraint(Sketcher.Constraint("DistanceX", -1, 1, 0, 3, 27.085225))
sketch4.addConstraint(Sketcher.Constraint("DistanceY", -1, 1, 0, 3, 3.199932))
pocket3 = body.newObject("PartDesign::Pocket", "Pocket002")
pocket3.Profile = sketch4
pocket3.Type = "UpToFirst"

# Sketch on XY plane
sketch5 = body.newObject("Sketcher::SketchObject", "Sketch004")
sketch5.AttachmentSupport = (doc.getObject("XY_Plane"), [""])
sketch5.MapMode = "FlatFace"
sketch5.addGeometry(Part.Circle(Vector(3.2, 3.2, 0), Vector(0, 0, 1), 2), False)
sketch5.addConstraint(Sketcher.Constraint("Diameter", 0, 4.0))
sketch5.addConstraint(Sketcher.Constraint("DistanceX", -1, 1, 0, 3, 3.199932))
sketch5.addConstraint(Sketcher.Constraint("DistanceY", -1, 1, 0, 3, 3.200057))
pocket4 = body.newObject("PartDesign::Pocket", "Pocket003")
pocket4.Profile = sketch5
pocket4.Type = "UpToFirst"

# Sketch on XY plane
sketch6 = body.newObject("Sketcher::SketchObject", "Sketch005")
sketch6.AttachmentSupport = (doc.getObject("XY_Plane"), [""])
sketch6.MapMode = "FlatFace"
sketch6.addGeometry(Part.LineSegment(Vector(11.3, 17.9, 0), Vector(12.3, 16.8, 0)), False)
sketch6.addGeometry(Part.ArcOfCircle(Part.Circle(Vector(15.1, 15.1, 0), Vector(0, 0, 1), 3.2), math.radians(149), math.radians(211)), False)
sketch6.addGeometry(Part.LineSegment(Vector(12.3, 13.5, 0), Vector(11.3, 12.4, 0)), False)
sketch6.addGeometry(Part.ArcOfCircle(Part.Circle(Vector(11.9, 11.9, 0), Vector(0, 0, 1), 0.8), math.radians(135), math.radians(315)), False)
sketch6.addGeometry(Part.LineSegment(Vector(12.4, 11.3, 0), Vector(13.5, 12.3, 0)), False)
sketch6.addGeometry(Part.ArcOfCircle(Part.Circle(Vector(15.1, 15.1, 0), Vector(0, 0, 1), 3.2), math.radians(-121), math.radians(-59)), False)
sketch6.addGeometry(Part.LineSegment(Vector(16.8, 12.3, 0), Vector(17.9, 11.3, 0)), False)
sketch6.addGeometry(Part.ArcOfCircle(Part.Circle(Vector(18.4, 11.9, 0), Vector(0, 0, 1), 0.8), math.radians(-135), math.radians(45)), False)
sketch6.addGeometry(Part.LineSegment(Vector(19, 12.4, 0), Vector(17.9, 13.5, 0)), False)
sketch6.addGeometry(Part.ArcOfCircle(Part.Circle(Vector(15.1, 15.1, 0), Vector(0, 0, 1), 3.2), math.radians(-31), math.radians(31)), False)
sketch6.addGeometry(Part.LineSegment(Vector(17.9, 16.8, 0), Vector(19, 17.9, 0)), False)
sketch6.addGeometry(Part.ArcOfCircle(Part.Circle(Vector(18.4, 18.4, 0), Vector(0, 0, 1), 0.8), math.radians(-45), math.radians(135)), False)
sketch6.addGeometry(Part.LineSegment(Vector(17.9, 19, 0), Vector(16.8, 17.9, 0)), False)
sketch6.addGeometry(Part.ArcOfCircle(Part.Circle(Vector(15.1, 15.1, 0), Vector(0, 0, 1), 3.2), math.radians(59), math.radians(121)), False)
sketch6.addGeometry(Part.LineSegment(Vector(13.5, 17.9, 0), Vector(12.4, 19, 0)), False)
sketch6.addGeometry(Part.ArcOfCircle(Part.Circle(Vector(11.9, 18.4, 0), Vector(0, 0, 1), 0.8), math.radians(45), math.radians(225)), False)
sketch6.addConstraint(Sketcher.Constraint("Coincident", 0, 2, 1, 1))
sketch6.addConstraint(Sketcher.Constraint("Coincident", 1, 2, 2, 1))
sketch6.addConstraint(Sketcher.Constraint("Tangent", 2, 2, 3, 1))
sketch6.addConstraint(Sketcher.Constraint("Tangent", 3, 2, 4, 1))
sketch6.addConstraint(Sketcher.Constraint("Coincident", 4, 2, 5, 1))
sketch6.addConstraint(Sketcher.Constraint("Coincident", 5, 2, 6, 1))
sketch6.addConstraint(Sketcher.Constraint("Tangent", 6, 2, 7, 1))
sketch6.addConstraint(Sketcher.Constraint("Tangent", 7, 2, 8, 1))
sketch6.addConstraint(Sketcher.Constraint("Coincident", 8, 2, 9, 1))
sketch6.addConstraint(Sketcher.Constraint("Coincident", 9, 2, 10, 1))
sketch6.addConstraint(Sketcher.Constraint("Tangent", 10, 2, 11, 1))
sketch6.addConstraint(Sketcher.Constraint("Tangent", 11, 2, 12, 1))
sketch6.addConstraint(Sketcher.Constraint("Coincident", 12, 2, 13, 1))
sketch6.addConstraint(Sketcher.Constraint("Coincident", 13, 2, 14, 1))
sketch6.addConstraint(Sketcher.Constraint("Tangent", 14, 2, 15, 1))
sketch6.addConstraint(Sketcher.Constraint("Tangent", 15, 2, 0, 1))
sketch6.addConstraint(Sketcher.Constraint("Coincident", 5, 3, 1, 3))
sketch6.addConstraint(Sketcher.Constraint("Coincident", 9, 3, 1, 3))
sketch6.addConstraint(Sketcher.Constraint("Coincident", 13, 3, 1, 3))
sketch6.addConstraint(Sketcher.Constraint("Equal", 1, 5))
sketch6.addConstraint(Sketcher.Constraint("Equal", 3, 7))
sketch6.addConstraint(Sketcher.Constraint("Equal", 5, 9))
sketch6.addConstraint(Sketcher.Constraint("Equal", 7, 11))
sketch6.addConstraint(Sketcher.Constraint("Equal", 9, 13))
sketch6.addConstraint(Sketcher.Constraint("Equal", 11, 15))
sketch6.addConstraint(Sketcher.Constraint("Parallel", 2, 4))
sketch6.addConstraint(Sketcher.Constraint("Parallel", 0, 6))
sketch6.addConstraint(Sketcher.Constraint("Parallel", 6, 8))
sketch6.addConstraint(Sketcher.Constraint("Parallel", 4, 10))
sketch6.addConstraint(Sketcher.Constraint("Parallel", 10, 12))
sketch6.addConstraint(Sketcher.Constraint("Parallel", 8, 14))
sketch6.addConstraint(Sketcher.Constraint("Horizontal", 3, 3, 7, 3))
sketch6.addConstraint(Sketcher.Constraint("Horizontal", 11, 3, 15, 3))
sketch6.addConstraint(Sketcher.Constraint("Horizontal", 4, 2, 5, 2))
sketch6.addConstraint(Sketcher.Constraint("Horizontal", 3, 2, 6, 2))
sketch6.addConstraint(Sketcher.Constraint("Horizontal", 0, 2, 9, 2))
sketch6.addConstraint(Sketcher.Constraint("Vertical", 7, 3, 11, 3))
sketch6.addConstraint(Sketcher.Constraint("Vertical", 0, 2, 1, 2))
sketch6.addConstraint(Sketcher.Constraint("Equal", 2, 4))
sketch6.addConstraint(Sketcher.Constraint("Radius", 3, 0.8))
sketch6.addConstraint(Sketcher.Constraint("Radius", 1, 3.25))
sketch6.addConstraint(Sketcher.Constraint("Distance", 0, 1.5))
sketch6.addConstraint(Sketcher.Constraint("DistanceX", -1, 1, 3, 2, 12.4203))
sketch6.addConstraint(Sketcher.Constraint("DistanceY", 4, 2, 2, 2, 0.070699))
sketch6.addConstraint(Sketcher.Constraint("DistanceY", -1, 1, 1, 3, 15.142641))
pocket5 = body.newObject("PartDesign::Pocket", "Pocket004")
pocket5.Profile = sketch6
pocket5.Type = "UpToFirst"

doc.recompute()
